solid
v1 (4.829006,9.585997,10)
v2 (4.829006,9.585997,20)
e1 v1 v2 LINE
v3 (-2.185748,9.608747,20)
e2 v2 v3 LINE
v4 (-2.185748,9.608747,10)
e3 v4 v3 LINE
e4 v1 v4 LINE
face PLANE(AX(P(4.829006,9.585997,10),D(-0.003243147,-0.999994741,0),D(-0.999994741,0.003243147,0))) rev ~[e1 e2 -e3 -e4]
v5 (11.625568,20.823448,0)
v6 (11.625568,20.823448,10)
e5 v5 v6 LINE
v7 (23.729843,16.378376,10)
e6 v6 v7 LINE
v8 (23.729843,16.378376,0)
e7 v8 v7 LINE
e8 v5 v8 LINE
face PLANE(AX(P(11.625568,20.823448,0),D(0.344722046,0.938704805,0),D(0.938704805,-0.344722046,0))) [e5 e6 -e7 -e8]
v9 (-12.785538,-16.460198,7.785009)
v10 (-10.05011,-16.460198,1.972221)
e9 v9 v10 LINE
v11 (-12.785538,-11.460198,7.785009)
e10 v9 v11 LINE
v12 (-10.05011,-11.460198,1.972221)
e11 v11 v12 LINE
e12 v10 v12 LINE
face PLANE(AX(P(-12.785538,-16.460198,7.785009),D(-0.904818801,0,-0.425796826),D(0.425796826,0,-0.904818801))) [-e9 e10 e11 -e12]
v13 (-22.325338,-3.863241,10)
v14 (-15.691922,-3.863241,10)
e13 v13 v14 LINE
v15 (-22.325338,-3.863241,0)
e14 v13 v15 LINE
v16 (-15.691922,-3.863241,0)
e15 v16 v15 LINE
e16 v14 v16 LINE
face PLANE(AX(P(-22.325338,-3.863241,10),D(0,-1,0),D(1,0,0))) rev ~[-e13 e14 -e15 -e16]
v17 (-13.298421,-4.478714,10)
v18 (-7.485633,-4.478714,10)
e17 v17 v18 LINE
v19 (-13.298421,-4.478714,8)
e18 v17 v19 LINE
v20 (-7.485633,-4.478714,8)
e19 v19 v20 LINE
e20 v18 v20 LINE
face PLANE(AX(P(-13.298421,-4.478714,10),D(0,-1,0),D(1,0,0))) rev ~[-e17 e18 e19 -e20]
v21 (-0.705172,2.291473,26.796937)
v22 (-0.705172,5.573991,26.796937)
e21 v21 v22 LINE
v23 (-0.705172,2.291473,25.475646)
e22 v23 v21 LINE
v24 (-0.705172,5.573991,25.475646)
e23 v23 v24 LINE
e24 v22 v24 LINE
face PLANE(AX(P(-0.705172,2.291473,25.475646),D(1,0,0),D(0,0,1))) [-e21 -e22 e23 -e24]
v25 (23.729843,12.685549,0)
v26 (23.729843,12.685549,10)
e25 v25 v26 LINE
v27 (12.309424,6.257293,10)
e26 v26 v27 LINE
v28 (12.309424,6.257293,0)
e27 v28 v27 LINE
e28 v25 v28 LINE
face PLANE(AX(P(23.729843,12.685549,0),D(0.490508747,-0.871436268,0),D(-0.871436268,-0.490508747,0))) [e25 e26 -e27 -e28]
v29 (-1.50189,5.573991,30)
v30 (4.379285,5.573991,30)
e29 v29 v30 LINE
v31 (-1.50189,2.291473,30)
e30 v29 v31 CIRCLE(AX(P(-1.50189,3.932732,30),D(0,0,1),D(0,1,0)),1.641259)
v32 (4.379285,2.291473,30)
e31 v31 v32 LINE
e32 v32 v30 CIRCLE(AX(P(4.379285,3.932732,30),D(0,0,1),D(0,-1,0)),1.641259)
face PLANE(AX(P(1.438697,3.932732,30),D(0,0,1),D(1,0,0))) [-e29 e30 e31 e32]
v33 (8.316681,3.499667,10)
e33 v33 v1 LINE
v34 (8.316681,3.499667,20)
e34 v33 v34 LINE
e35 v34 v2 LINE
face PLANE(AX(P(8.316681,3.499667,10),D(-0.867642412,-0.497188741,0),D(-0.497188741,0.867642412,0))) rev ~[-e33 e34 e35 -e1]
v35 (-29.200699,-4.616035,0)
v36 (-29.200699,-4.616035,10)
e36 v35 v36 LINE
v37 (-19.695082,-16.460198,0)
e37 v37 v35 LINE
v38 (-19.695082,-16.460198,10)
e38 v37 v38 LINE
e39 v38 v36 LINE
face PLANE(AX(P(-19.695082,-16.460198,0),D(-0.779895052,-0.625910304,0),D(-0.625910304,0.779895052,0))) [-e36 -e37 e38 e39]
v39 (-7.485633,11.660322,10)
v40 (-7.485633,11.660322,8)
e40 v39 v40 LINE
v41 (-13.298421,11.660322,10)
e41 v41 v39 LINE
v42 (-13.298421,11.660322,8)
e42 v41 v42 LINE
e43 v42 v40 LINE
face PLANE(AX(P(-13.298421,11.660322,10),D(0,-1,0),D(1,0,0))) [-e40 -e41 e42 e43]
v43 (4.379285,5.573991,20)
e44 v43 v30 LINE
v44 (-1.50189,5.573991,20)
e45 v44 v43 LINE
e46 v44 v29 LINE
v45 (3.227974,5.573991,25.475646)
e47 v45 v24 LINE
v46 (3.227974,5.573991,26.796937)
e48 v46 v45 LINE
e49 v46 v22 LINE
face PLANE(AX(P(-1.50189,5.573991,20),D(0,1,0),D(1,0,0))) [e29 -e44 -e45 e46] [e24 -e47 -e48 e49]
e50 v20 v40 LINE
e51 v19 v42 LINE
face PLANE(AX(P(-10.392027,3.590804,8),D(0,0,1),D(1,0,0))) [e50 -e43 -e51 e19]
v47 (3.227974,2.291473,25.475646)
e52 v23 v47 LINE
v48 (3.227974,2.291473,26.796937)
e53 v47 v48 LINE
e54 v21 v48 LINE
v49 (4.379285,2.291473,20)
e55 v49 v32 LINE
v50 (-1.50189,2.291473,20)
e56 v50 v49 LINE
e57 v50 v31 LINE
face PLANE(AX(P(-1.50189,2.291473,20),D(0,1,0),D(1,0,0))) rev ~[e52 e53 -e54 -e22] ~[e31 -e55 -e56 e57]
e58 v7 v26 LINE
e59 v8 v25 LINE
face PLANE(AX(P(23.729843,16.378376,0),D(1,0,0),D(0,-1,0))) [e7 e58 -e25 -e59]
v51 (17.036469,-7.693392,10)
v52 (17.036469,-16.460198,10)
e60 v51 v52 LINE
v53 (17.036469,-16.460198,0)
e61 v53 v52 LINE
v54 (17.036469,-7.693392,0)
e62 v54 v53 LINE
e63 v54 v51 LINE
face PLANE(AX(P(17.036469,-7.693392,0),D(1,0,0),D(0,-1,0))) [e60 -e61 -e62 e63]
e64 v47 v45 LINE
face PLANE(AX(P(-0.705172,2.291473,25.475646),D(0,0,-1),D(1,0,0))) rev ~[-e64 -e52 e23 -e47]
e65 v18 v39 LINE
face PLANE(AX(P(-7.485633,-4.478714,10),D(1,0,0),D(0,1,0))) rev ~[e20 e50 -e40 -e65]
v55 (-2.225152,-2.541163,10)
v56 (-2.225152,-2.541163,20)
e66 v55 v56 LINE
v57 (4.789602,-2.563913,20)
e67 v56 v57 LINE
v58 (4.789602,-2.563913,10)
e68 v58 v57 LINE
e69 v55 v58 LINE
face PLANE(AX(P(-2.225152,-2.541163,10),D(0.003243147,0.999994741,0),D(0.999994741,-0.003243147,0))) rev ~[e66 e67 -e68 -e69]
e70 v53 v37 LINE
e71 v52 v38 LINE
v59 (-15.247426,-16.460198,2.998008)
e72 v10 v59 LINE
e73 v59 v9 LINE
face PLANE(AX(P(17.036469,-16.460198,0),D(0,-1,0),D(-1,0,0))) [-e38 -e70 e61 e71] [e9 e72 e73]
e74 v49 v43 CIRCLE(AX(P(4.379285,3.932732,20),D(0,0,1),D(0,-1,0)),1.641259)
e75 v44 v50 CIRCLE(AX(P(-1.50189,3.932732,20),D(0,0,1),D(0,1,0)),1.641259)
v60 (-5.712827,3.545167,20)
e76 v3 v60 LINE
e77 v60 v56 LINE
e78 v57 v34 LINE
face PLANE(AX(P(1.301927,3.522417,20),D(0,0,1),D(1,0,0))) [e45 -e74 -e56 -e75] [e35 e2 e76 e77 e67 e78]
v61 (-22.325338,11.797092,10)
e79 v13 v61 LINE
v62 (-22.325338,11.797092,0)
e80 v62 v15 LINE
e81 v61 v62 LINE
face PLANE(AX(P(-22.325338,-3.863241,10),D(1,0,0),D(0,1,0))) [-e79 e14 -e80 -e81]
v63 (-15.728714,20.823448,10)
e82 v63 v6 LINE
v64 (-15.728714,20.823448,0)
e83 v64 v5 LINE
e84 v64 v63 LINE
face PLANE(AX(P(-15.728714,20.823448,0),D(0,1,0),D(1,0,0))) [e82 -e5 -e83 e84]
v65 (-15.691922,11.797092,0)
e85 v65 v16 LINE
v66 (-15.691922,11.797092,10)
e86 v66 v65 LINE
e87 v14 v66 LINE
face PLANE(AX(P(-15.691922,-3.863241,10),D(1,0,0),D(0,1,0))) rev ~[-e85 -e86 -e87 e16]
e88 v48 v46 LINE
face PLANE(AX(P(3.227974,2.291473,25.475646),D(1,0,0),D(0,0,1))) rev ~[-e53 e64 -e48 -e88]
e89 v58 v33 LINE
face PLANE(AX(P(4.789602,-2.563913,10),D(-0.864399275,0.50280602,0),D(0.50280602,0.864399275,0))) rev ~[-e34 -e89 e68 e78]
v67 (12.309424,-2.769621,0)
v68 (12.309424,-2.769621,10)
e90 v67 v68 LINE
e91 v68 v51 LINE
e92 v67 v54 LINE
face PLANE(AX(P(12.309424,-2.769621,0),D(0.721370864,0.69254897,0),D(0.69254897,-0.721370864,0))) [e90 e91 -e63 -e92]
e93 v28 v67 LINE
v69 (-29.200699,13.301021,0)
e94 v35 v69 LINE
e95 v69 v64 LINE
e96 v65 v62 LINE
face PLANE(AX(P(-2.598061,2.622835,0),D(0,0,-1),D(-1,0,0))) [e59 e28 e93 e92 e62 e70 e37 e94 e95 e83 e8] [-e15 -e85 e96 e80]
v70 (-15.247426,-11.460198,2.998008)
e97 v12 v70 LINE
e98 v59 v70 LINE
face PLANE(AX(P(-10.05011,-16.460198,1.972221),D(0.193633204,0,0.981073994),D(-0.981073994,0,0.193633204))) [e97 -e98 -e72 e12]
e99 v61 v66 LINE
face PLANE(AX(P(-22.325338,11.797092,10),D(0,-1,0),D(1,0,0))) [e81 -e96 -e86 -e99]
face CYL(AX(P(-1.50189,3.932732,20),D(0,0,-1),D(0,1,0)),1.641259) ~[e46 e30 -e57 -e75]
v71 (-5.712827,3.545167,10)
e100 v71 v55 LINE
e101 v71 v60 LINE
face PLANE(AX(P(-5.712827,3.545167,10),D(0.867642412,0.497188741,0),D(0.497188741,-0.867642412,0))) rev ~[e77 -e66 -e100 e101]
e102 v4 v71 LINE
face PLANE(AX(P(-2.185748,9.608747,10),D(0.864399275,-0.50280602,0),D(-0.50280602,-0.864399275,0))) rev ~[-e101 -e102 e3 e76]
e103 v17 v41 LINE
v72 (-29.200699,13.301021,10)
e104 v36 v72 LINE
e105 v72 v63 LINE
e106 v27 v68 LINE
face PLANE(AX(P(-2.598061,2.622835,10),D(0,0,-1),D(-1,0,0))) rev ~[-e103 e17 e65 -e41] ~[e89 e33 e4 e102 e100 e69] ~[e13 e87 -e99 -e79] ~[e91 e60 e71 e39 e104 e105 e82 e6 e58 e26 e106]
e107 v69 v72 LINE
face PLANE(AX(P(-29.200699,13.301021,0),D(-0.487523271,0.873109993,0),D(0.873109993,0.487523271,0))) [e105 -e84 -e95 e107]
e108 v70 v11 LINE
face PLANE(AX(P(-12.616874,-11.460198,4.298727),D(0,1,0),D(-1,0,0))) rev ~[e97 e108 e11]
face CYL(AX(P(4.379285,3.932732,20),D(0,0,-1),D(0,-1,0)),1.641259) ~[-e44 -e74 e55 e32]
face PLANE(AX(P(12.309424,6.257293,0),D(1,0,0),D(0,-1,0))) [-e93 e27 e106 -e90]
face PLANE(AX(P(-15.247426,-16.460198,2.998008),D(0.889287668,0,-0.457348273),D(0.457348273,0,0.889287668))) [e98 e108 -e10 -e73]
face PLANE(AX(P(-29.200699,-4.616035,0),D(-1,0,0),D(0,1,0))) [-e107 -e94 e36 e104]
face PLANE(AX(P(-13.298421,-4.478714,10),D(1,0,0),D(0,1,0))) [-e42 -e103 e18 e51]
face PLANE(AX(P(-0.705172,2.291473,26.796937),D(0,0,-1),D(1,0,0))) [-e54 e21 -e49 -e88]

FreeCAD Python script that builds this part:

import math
import FreeCAD as App
import Part
import Sketcher

V = App.Vector


def add_polygon(sketch, points):
    """Adds a closed chain of lines whose ends are joined by coincident constraints."""
    first, n = sketch.GeometryCount, len(points)
    for a, b in zip(points, points[1:] + points[:1]):
        sketch.addGeometry(Part.LineSegment(App.Vector(*a, 0), App.Vector(*b, 0)), False)
    for i in range(n):
        sketch.addConstraint(Sketcher.Constraint("Coincident", first + i, 2, first + (i + 1) % n, 1))

doc = App.newDocument("Part")
body = doc.addObject("PartDesign::Body", "Body")

# Sketch on XY plane
sketch1 = doc.addObject("Sketcher::SketchObject", "Sketch")
body.addObject(sketch1)
sketch1.AttachmentSupport = (doc.XY_Plane, [""])
sketch1.MapMode = "FlatFace"
add_polygon(sketch1, [(11.6, 20.8), (-15.7, 20.8), (-29.2, 13.3), (-29.2, -4.6), (-19.7, -16.5), (17, -16.5), (17, -7.7), (12.3, -2.8), (12.3, 6.3), (23.7, 12.7), (23.7, 16.4)])  # lines 0-10
sketch1.addConstraint([
    Sketcher.Constraint("Horizontal", 0),
    Sketcher.Constraint("Vertical", 2),
    Sketcher.Constraint("Horizontal", 4),
    Sketcher.Constraint("Vertical", 5),
    Sketcher.Constraint("Vertical", 7),
    Sketcher.Constraint("Vertical", 9),
    Sketcher.Constraint("DistanceX", 0, 2, 0, 1, 27.354282),
    Sketcher.Constraint("DistanceX", 4, 1, 4, 2, 36.731551),
    Sketcher.Constraint("DistanceX", 1, 2, -1, 1, 29.200699),
    Sketcher.Constraint("DistanceY", 8, 2, 0, 2, 8.137899),
    Sketcher.Constraint("DistanceY", 2, 2, 2, 1, 17.917056),
    Sketcher.Constraint("DistanceY", 5, 1, 5, 2, 8.766806),
    Sketcher.Constraint("DistanceY", 7, 1, 7, 2, 9.026914),
    Sketcher.Constraint("DistanceY", 9, 1, 9, 2, 3.692827),
    Sketcher.Constraint("DistanceY", -1, 1, 1, 2, 13.301021),
    Sketcher.Constraint("DistanceX", 3, 2, -1, 1, 19.695082),
    Sketcher.Constraint("DistanceY", 6, 2, -1, 1, 2.769621),
    Sketcher.Constraint("DistanceY", -1, 1, 8, 2, 12.685549),
    Sketcher.Constraint("DistanceY", 3, 2, 1, 2, 29.761219),
    Sketcher.Constraint("DistanceX", 0, 2, 6, 2, 28.038138),
    Sketcher.Constraint("DistanceX", 7, 2, 8, 2, 11.420419),
    Sketcher.Constraint("Distance", 1, 15.429883),
])
pad1 = doc.addObject("PartDesign::Pad", "Pad")
body.addObject(pad1)
pad1.Profile = sketch1
pad1.Length = 10

# Sketch on XY plane
sketch2 = doc.addObject("Sketcher::SketchObject", "Sketch001")
body.addObject(sketch2)
sketch2.AttachmentSupport = (doc.XY_Plane, [""])
sketch2.MapMode = "FlatFace"
sketch2.AttachmentOffset = App.Placement(V(0, 0, 10), App.Rotation())
add_polygon(sketch2, [(-22, 12), (-22, -4), (-16, -4), (-16, 12)])  # lines 0-3
sketch2.addConstraint([
    Sketcher.Constraint("Vertical", 0),
    Sketcher.Constraint("Horizontal", 1),
    Sketcher.Constraint("Vertical", 2),
    Sketcher.Constraint("Horizontal", 3),
    Sketcher.Constraint("DistanceX", 1, 1, 1, 2, 6.633416),
    Sketcher.Constraint("DistanceY", 0, 2, 0, 1, 15.660333),
    Sketcher.Constraint("DistanceY", 0, 2, -1, 1, 3.863241),
    Sketcher.Constraint("DistanceX", 0, 2, -1, 1, 22.325338),
])
pocket1 = doc.addObject("PartDesign::Pocket", "Pocket")
body.addObject(pocket1)
pocket1.Profile = sketch2
pocket1.Type = "ThroughAll"

# Sketch on XY plane
sketch3 = doc.addObject("Sketcher::SketchObject", "Sketch002")
body.addObject(sketch3)
sketch3.AttachmentSupport = (doc.XY_Plane, [""])
sketch3.MapMode = "FlatFace"
sketch3.AttachmentOffset = App.Placement(V(0, 0, 10), App.Rotation())
add_polygon(sketch3, [(-13, 12), (-13, -4), (-7, -4), (-7, 12)])  # lines 0-3
sketch3.addConstraint([
    Sketcher.Constraint("Vertical", 0),
    Sketcher.Constraint("Horizontal", 1),
    Sketcher.Constraint("Vertical", 2),
    Sketcher.Constraint("Horizontal", 3),
    Sketcher.Constraint("DistanceX", 1, 1, 1, 2, 5.812787),
    Sketcher.Constraint("DistanceY", 0, 2, 0, 1, 16.139036),
    Sketcher.Constraint("DistanceX", 0, 2, -1, 1, 13.298421),
    Sketcher.Constraint("DistanceY", 0, 2, -1, 1, 4.478714),
])
pocket2 = doc.addObject("PartDesign::Pocket", "Pocket001")
body.addObject(pocket2)
pocket2.Profile = sketch3
pocket2.Length = 2

# Sketch on XY plane
sketch4 = doc.addObject("Sketcher::SketchObject", "Sketch003")
body.addObject(sketch4)
sketch4.AttachmentSupport = (doc.XY_Plane, [""])
sketch4.MapMode = "FlatFace"
sketch4.AttachmentOffset = App.Placement(V(0, 0, 10), App.Rotation())
add_polygon(sketch4, [(5, -3), (8, 3), (5, 10), (-2, 10), (-6, 4), (-2, -3)])  # lines 0-5
sketch4.addConstraint([
    Sketcher.Constraint("Parallel", 0, 3),
    Sketcher.Constraint("Parallel", 1, 4),
    Sketcher.Constraint("Parallel", 2, 5),
    Sketcher.Constraint("Equal", 0, 1),
    Sketcher.Constraint("Equal", 1, 2),
    Sketcher.Constraint("Equal", 2, 3),
    Sketcher.Constraint("DistanceY", 0, 2, 3, 2, 0.0455),
    Sketcher.Constraint("Distance", 0, 7.014791),
    Sketcher.Constraint("DistanceX", -1, 1, 0, 2, 8.316681),
    Sketcher.Constraint("DistanceX", 4, 2, -1, 1, 2.225152),
    Sketcher.Constraint("DistanceY", 0, 2, 1, 2, 6.08633),
    Sketcher.Constraint("DistanceY", -1, 1, 0, 2, 3.499667),
])
pad2 = doc.addObject("PartDesign::Pad", "Pad001")
body.addObject(pad2)
pad2.Profile = sketch4
pad2.Length = 10

# Sketch on XY plane
sketch5 = doc.addObject("Sketcher::SketchObject", "Sketch004")
body.addObject(sketch5)
sketch5.AttachmentSupport = (doc.XY_Plane, [""])
sketch5.MapMode = "FlatFace"
sketch5.AttachmentOffset = App.Placement(V(0, 0, 20), App.Rotation())
sketch5.addGeometry([
    Part.ArcOfCircle(Part.Circle(V(-1.5, 3.9, 0), V(0, 0, 1), 1.6), math.radians(90), math.radians(270)),
    Part.LineSegment(V(-1.5, 2.3, 0), V(4.4, 2.3, 0)),
    Part.ArcOfCircle(Part.Circle(V(4.4, 3.9, 0), V(0, 0, 1), 1.6), math.radians(-90), math.radians(90)),
    Part.LineSegment(V(4.4, 5.6, 0), V(-1.5, 5.6, 0)),
], False)
sketch5.addConstraint([
    Sketcher.Constraint("Tangent", 0, 2, 1, 1),
    Sketcher.Constraint("Tangent", 1, 2, 2, 1),
    Sketcher.Constraint("Tangent", 2, 2, 3, 1),
    Sketcher.Constraint("Tangent", 3, 2, 0, 1),
    Sketcher.Constraint("Horizontal", 1),
    Sketcher.Constraint("Horizontal", 3),
    Sketcher.Constraint("Radius", 0, 1.641259),
    Sketcher.Constraint("DistanceX", 1, 1, 1, 2, 5.881175),
    Sketcher.Constraint("DistanceX", 0, 3, -1, 1, 1.50189),
    Sketcher.Constraint("DistanceY", -1, 1, 2, 2, 5.573991),
])
pad3 = doc.addObject("PartDesign::Pad", "Pad002")
body.addObject(pad3)
pad3.Profile = sketch5
pad3.Length = 10

# Sketch on XZ plane
sketch6 = doc.addObject("Sketcher::SketchObject", "Sketch005")
body.addObject(sketch6)
sketch6.AttachmentSupport = (doc.XZ_Plane, [""])
sketch6.MapMode = "FlatFace"
sketch6.AttachmentOffset = App.Placement(V(0, 0, 16.460198), App.Rotation())
add_polygon(sketch6, [(-13, 8), (-15, 3), (-10, 2)])  # lines 0-2
sketch6.addConstraint([
    Sketcher.Constraint("DistanceY", 0, 2, 2, 2, 4.787001),
    Sketcher.Constraint("Distance", 0, 5.382961),
    Sketcher.Constraint("DistanceY", -1, 1, 0, 2, 2.998008),
    Sketcher.Constraint("DistanceX", 1, 2, -1, 1, 10.05011),
    Sketcher.Constraint("DistanceY", -1, 1, 1, 2, 1.972221),
    Sketcher.Constraint("DistanceX", 2, 2, -1, 1, 12.785538),
])
pocket3 = doc.addObject("PartDesign::Pocket", "Pocket002")
body.addObject(pocket3)
pocket3.Profile = sketch6
pocket3.Length = 5

# Sketch on XZ plane
sketch7 = doc.addObject("Sketcher::SketchObject", "Sketch006")
body.addObject(sketch7)
sketch7.AttachmentSupport = (doc.XZ_Plane, [""])
sketch7.MapMode = "FlatFace"
sketch7.AttachmentOffset = App.Placement(V(0, 0, -2.291473), App.Rotation())
add_polygon(sketch7, [(-0.7, 26.8), (-0.7, 25.5), (3.2, 25.5), (3.2, 26.8)])  # lines 0-3
sketch7.addConstraint([
    Sketcher.Constraint("Vertical", 0),
    Sketcher.Constraint("Horizontal", 1),
    Sketcher.Constraint("Vertical", 2),
    Sketcher.Constraint("Horizontal", 3),
    Sketcher.Constraint("DistanceY", 0, 2, 0, 1, 1.321291),
    Sketcher.Constraint("DistanceX", 1, 1, 1, 2, 3.933146),
    Sketcher.Constraint("DistanceX", 0, 2, -1, 1, 0.705172),
    Sketcher.Constraint("DistanceY", -1, 1, 0, 2, 25.475646),
])
pocket4 = doc.addObject("PartDesign::Pocket", "Pocket003")
body.addObject(pocket4)
pocket4.Profile = sketch7
pocket4.Type = "ThroughAll"

doc.recompute()
